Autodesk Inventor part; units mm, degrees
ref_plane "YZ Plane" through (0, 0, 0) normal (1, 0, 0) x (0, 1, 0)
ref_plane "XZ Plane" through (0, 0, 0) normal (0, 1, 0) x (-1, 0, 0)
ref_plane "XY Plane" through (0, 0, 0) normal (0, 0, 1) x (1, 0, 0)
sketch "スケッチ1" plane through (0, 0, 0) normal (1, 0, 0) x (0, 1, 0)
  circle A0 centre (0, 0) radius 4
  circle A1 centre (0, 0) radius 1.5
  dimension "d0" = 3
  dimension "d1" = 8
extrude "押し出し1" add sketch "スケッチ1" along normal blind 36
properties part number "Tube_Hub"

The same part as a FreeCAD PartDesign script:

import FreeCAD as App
import Part
import Sketcher

V = App.Vector

doc = App.newDocument("Part")
params = doc.addObject("Spreadsheet::Sheet", "Params")
for row, (alias, value) in enumerate([
    ("sketch1_diameter", "8 mm"),
    ("sketch1_diameter2", "3 mm"),
    ("pad1_length", "36 mm"),
], start=1):
    params.set(f"A{row}", alias)
    params.set(f"B{row}", "=" + value)
    params.setAlias(f"B{row}", alias)

body = doc.addObject("PartDesign::Body", "Body")

sketch1 = body.newObject("Sketcher::SketchObject", "Sketch")
sketch1.AttachmentSupport = (doc.getObject("YZ_Plane"), [""])
sketch1.MapMode = "FlatFace"
sketch1.addGeometry([
    Part.Circle(V(0, 0, 0), V(0, 0, 1), 4),
    Part.Circle(V(0, 0, 0), V(0, 0, 1), 1.5),
], False)
sketch1.addConstraint([
    Sketcher.Constraint("Coincident", 0, 3, -1, 1),
    Sketcher.Constraint("Coincident", 1, 3, -1, 1),
    Sketcher.Constraint("Diameter", 0, 8.0),
    Sketcher.Constraint("Diameter", 1, 3.0),
])
sketch1.setExpression("Constraints[2]", "Params.sketch1_diameter")
sketch1.setExpression("Constraints[3]", "Params.sketch1_diameter2")
pad1 = body.newObject("PartDesign::Pad", "Pad")
pad1.Profile = sketch1
pad1.setExpression("Length", "Params.pad1_length")

doc.recompute()
